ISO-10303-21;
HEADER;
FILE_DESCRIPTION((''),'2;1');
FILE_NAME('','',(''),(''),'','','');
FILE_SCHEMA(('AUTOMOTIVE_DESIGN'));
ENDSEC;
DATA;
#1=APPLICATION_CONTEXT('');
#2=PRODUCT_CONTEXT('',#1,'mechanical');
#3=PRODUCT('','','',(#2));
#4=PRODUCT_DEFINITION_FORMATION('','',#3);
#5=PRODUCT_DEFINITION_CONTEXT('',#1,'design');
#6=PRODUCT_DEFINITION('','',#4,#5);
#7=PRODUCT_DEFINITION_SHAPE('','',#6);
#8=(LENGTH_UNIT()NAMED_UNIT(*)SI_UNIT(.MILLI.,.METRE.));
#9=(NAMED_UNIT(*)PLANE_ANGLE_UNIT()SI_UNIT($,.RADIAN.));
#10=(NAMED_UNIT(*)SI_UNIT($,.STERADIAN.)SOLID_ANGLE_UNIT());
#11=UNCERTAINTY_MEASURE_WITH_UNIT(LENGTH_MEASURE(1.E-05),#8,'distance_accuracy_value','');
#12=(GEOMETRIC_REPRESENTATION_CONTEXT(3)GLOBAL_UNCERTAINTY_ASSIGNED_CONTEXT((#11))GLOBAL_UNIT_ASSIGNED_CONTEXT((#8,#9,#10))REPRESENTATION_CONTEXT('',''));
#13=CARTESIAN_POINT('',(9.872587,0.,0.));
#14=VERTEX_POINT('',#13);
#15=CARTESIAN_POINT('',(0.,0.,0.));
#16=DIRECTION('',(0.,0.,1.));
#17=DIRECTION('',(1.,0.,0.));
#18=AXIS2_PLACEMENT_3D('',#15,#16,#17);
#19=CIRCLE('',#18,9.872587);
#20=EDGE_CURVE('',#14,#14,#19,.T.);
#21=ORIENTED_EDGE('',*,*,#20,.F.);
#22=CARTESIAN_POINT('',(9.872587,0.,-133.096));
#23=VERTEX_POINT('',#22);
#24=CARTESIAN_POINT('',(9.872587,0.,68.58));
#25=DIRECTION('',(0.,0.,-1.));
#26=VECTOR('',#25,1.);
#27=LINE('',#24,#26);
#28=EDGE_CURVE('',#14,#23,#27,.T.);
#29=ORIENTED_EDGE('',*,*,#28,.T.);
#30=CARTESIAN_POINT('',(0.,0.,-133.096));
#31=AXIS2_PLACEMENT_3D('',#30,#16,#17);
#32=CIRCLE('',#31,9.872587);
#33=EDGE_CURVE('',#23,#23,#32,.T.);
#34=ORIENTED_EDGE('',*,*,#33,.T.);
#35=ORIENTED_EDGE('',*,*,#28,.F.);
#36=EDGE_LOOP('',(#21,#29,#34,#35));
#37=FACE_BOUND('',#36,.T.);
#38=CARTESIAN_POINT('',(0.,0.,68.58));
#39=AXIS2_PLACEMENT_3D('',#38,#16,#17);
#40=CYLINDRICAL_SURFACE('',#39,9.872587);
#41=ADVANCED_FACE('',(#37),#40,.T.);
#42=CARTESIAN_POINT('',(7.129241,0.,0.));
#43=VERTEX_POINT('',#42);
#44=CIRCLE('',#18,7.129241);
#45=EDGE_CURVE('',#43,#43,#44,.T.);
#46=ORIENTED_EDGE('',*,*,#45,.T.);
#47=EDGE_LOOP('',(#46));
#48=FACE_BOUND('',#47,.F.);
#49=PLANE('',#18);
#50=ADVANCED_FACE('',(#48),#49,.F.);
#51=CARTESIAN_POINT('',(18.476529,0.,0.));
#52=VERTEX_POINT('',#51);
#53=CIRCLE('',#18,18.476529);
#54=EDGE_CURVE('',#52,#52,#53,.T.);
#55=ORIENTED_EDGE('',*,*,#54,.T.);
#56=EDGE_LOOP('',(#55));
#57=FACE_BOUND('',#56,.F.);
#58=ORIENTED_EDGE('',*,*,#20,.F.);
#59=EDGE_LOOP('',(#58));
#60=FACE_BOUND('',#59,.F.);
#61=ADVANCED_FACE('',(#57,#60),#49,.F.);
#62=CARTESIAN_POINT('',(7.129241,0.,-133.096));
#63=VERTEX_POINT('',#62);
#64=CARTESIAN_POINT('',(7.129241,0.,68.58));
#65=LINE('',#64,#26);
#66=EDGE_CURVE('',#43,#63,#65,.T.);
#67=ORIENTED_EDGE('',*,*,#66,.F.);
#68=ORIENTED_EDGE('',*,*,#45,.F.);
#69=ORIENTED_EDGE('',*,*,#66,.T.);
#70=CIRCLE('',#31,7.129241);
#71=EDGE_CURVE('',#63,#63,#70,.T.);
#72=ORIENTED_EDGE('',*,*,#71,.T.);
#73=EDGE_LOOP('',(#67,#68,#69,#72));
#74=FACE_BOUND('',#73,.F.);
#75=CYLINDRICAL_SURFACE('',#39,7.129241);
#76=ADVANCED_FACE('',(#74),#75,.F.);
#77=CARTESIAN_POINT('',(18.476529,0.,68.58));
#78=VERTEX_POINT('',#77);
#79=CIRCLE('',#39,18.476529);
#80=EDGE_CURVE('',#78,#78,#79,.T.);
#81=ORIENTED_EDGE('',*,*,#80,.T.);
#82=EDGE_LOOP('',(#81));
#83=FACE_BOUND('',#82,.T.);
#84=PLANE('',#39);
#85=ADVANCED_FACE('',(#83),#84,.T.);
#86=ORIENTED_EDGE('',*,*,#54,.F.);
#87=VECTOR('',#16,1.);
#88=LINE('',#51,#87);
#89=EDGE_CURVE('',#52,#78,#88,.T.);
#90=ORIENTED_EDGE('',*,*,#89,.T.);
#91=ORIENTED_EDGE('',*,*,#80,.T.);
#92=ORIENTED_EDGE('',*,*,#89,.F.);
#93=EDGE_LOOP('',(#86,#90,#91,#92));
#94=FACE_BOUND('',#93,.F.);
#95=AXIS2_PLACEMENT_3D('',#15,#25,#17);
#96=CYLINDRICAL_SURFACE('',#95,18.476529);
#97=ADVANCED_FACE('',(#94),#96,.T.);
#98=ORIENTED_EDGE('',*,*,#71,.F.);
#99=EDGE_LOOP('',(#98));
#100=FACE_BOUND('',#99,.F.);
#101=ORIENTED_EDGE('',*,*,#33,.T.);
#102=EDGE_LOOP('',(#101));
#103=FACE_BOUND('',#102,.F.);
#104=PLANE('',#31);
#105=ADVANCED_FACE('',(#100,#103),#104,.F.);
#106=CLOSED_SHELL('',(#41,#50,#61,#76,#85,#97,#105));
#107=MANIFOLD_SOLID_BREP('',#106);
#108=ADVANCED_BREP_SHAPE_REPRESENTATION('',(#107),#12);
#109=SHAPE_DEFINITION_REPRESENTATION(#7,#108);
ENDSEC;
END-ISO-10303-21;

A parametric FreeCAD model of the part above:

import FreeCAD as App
import Part
import Sketcher

V = App.Vector
Q = App.Units.Quantity

doc = App.newDocument("Part")
body = doc.addObject("PartDesign::Body", "Body")

# Sketch on XY plane
sketch1 = body.newObject("Sketcher::SketchObject", "Sketch")
sketch1.AttachmentSupport = (doc.getObject("XY_Plane"), [""])
sketch1.MapMode = "FlatFace"
sketch1.addGeometry(Part.Circle(V(0, 0, 0), V(0, 0, 1), 18.476529), False)
sketch1.addConstraint(Sketcher.Constraint("Coincident", 0, 3, -1, 1))
sketch1.addConstraint(Sketcher.Constraint("Diameter", 0, 36.953058))
pad1 = body.newObject("PartDesign::Pad", "Pad")
pad1.Profile = sketch1
pad1.Length = Q("2.7 in")

# Sketch on XY plane
sketch2 = body.newObject("Sketcher::SketchObject", "Sketch001")
sketch2.AttachmentSupport = (doc.getObject("XY_Plane"), [""])
sketch2.MapMode = "FlatFace"
sketch2.AttachmentOffset = App.Placement(V(0, 0, 2.7 * 25.4), App.Rotation())
sketch2.addGeometry(Part.Circle(V(0, 0, 0), V(0, 0, 1), 9.872587), False)
sketch2.addGeometry(Part.Circle(V(0, 0, 0), V(0, 0, 1), 7.129241), False)
sketch2.addConstraint(Sketcher.Constraint("Coincident", 0, 3, -1, 1))
sketch2.addConstraint(Sketcher.Constraint("Coincident", 1, 3, -1, 1))
sketch2.addConstraint(Sketcher.Constraint("Diameter", 0, 19.745174))
sketch2.addConstraint(Sketcher.Constraint("Diameter", 1, 14.258482))
pad2 = body.newObject("PartDesign::Pad", "Pad001")
pad2.Profile = sketch2
pad2.Length = Q("7.94 in")
pad2.Reversed = True

doc.recompute()
